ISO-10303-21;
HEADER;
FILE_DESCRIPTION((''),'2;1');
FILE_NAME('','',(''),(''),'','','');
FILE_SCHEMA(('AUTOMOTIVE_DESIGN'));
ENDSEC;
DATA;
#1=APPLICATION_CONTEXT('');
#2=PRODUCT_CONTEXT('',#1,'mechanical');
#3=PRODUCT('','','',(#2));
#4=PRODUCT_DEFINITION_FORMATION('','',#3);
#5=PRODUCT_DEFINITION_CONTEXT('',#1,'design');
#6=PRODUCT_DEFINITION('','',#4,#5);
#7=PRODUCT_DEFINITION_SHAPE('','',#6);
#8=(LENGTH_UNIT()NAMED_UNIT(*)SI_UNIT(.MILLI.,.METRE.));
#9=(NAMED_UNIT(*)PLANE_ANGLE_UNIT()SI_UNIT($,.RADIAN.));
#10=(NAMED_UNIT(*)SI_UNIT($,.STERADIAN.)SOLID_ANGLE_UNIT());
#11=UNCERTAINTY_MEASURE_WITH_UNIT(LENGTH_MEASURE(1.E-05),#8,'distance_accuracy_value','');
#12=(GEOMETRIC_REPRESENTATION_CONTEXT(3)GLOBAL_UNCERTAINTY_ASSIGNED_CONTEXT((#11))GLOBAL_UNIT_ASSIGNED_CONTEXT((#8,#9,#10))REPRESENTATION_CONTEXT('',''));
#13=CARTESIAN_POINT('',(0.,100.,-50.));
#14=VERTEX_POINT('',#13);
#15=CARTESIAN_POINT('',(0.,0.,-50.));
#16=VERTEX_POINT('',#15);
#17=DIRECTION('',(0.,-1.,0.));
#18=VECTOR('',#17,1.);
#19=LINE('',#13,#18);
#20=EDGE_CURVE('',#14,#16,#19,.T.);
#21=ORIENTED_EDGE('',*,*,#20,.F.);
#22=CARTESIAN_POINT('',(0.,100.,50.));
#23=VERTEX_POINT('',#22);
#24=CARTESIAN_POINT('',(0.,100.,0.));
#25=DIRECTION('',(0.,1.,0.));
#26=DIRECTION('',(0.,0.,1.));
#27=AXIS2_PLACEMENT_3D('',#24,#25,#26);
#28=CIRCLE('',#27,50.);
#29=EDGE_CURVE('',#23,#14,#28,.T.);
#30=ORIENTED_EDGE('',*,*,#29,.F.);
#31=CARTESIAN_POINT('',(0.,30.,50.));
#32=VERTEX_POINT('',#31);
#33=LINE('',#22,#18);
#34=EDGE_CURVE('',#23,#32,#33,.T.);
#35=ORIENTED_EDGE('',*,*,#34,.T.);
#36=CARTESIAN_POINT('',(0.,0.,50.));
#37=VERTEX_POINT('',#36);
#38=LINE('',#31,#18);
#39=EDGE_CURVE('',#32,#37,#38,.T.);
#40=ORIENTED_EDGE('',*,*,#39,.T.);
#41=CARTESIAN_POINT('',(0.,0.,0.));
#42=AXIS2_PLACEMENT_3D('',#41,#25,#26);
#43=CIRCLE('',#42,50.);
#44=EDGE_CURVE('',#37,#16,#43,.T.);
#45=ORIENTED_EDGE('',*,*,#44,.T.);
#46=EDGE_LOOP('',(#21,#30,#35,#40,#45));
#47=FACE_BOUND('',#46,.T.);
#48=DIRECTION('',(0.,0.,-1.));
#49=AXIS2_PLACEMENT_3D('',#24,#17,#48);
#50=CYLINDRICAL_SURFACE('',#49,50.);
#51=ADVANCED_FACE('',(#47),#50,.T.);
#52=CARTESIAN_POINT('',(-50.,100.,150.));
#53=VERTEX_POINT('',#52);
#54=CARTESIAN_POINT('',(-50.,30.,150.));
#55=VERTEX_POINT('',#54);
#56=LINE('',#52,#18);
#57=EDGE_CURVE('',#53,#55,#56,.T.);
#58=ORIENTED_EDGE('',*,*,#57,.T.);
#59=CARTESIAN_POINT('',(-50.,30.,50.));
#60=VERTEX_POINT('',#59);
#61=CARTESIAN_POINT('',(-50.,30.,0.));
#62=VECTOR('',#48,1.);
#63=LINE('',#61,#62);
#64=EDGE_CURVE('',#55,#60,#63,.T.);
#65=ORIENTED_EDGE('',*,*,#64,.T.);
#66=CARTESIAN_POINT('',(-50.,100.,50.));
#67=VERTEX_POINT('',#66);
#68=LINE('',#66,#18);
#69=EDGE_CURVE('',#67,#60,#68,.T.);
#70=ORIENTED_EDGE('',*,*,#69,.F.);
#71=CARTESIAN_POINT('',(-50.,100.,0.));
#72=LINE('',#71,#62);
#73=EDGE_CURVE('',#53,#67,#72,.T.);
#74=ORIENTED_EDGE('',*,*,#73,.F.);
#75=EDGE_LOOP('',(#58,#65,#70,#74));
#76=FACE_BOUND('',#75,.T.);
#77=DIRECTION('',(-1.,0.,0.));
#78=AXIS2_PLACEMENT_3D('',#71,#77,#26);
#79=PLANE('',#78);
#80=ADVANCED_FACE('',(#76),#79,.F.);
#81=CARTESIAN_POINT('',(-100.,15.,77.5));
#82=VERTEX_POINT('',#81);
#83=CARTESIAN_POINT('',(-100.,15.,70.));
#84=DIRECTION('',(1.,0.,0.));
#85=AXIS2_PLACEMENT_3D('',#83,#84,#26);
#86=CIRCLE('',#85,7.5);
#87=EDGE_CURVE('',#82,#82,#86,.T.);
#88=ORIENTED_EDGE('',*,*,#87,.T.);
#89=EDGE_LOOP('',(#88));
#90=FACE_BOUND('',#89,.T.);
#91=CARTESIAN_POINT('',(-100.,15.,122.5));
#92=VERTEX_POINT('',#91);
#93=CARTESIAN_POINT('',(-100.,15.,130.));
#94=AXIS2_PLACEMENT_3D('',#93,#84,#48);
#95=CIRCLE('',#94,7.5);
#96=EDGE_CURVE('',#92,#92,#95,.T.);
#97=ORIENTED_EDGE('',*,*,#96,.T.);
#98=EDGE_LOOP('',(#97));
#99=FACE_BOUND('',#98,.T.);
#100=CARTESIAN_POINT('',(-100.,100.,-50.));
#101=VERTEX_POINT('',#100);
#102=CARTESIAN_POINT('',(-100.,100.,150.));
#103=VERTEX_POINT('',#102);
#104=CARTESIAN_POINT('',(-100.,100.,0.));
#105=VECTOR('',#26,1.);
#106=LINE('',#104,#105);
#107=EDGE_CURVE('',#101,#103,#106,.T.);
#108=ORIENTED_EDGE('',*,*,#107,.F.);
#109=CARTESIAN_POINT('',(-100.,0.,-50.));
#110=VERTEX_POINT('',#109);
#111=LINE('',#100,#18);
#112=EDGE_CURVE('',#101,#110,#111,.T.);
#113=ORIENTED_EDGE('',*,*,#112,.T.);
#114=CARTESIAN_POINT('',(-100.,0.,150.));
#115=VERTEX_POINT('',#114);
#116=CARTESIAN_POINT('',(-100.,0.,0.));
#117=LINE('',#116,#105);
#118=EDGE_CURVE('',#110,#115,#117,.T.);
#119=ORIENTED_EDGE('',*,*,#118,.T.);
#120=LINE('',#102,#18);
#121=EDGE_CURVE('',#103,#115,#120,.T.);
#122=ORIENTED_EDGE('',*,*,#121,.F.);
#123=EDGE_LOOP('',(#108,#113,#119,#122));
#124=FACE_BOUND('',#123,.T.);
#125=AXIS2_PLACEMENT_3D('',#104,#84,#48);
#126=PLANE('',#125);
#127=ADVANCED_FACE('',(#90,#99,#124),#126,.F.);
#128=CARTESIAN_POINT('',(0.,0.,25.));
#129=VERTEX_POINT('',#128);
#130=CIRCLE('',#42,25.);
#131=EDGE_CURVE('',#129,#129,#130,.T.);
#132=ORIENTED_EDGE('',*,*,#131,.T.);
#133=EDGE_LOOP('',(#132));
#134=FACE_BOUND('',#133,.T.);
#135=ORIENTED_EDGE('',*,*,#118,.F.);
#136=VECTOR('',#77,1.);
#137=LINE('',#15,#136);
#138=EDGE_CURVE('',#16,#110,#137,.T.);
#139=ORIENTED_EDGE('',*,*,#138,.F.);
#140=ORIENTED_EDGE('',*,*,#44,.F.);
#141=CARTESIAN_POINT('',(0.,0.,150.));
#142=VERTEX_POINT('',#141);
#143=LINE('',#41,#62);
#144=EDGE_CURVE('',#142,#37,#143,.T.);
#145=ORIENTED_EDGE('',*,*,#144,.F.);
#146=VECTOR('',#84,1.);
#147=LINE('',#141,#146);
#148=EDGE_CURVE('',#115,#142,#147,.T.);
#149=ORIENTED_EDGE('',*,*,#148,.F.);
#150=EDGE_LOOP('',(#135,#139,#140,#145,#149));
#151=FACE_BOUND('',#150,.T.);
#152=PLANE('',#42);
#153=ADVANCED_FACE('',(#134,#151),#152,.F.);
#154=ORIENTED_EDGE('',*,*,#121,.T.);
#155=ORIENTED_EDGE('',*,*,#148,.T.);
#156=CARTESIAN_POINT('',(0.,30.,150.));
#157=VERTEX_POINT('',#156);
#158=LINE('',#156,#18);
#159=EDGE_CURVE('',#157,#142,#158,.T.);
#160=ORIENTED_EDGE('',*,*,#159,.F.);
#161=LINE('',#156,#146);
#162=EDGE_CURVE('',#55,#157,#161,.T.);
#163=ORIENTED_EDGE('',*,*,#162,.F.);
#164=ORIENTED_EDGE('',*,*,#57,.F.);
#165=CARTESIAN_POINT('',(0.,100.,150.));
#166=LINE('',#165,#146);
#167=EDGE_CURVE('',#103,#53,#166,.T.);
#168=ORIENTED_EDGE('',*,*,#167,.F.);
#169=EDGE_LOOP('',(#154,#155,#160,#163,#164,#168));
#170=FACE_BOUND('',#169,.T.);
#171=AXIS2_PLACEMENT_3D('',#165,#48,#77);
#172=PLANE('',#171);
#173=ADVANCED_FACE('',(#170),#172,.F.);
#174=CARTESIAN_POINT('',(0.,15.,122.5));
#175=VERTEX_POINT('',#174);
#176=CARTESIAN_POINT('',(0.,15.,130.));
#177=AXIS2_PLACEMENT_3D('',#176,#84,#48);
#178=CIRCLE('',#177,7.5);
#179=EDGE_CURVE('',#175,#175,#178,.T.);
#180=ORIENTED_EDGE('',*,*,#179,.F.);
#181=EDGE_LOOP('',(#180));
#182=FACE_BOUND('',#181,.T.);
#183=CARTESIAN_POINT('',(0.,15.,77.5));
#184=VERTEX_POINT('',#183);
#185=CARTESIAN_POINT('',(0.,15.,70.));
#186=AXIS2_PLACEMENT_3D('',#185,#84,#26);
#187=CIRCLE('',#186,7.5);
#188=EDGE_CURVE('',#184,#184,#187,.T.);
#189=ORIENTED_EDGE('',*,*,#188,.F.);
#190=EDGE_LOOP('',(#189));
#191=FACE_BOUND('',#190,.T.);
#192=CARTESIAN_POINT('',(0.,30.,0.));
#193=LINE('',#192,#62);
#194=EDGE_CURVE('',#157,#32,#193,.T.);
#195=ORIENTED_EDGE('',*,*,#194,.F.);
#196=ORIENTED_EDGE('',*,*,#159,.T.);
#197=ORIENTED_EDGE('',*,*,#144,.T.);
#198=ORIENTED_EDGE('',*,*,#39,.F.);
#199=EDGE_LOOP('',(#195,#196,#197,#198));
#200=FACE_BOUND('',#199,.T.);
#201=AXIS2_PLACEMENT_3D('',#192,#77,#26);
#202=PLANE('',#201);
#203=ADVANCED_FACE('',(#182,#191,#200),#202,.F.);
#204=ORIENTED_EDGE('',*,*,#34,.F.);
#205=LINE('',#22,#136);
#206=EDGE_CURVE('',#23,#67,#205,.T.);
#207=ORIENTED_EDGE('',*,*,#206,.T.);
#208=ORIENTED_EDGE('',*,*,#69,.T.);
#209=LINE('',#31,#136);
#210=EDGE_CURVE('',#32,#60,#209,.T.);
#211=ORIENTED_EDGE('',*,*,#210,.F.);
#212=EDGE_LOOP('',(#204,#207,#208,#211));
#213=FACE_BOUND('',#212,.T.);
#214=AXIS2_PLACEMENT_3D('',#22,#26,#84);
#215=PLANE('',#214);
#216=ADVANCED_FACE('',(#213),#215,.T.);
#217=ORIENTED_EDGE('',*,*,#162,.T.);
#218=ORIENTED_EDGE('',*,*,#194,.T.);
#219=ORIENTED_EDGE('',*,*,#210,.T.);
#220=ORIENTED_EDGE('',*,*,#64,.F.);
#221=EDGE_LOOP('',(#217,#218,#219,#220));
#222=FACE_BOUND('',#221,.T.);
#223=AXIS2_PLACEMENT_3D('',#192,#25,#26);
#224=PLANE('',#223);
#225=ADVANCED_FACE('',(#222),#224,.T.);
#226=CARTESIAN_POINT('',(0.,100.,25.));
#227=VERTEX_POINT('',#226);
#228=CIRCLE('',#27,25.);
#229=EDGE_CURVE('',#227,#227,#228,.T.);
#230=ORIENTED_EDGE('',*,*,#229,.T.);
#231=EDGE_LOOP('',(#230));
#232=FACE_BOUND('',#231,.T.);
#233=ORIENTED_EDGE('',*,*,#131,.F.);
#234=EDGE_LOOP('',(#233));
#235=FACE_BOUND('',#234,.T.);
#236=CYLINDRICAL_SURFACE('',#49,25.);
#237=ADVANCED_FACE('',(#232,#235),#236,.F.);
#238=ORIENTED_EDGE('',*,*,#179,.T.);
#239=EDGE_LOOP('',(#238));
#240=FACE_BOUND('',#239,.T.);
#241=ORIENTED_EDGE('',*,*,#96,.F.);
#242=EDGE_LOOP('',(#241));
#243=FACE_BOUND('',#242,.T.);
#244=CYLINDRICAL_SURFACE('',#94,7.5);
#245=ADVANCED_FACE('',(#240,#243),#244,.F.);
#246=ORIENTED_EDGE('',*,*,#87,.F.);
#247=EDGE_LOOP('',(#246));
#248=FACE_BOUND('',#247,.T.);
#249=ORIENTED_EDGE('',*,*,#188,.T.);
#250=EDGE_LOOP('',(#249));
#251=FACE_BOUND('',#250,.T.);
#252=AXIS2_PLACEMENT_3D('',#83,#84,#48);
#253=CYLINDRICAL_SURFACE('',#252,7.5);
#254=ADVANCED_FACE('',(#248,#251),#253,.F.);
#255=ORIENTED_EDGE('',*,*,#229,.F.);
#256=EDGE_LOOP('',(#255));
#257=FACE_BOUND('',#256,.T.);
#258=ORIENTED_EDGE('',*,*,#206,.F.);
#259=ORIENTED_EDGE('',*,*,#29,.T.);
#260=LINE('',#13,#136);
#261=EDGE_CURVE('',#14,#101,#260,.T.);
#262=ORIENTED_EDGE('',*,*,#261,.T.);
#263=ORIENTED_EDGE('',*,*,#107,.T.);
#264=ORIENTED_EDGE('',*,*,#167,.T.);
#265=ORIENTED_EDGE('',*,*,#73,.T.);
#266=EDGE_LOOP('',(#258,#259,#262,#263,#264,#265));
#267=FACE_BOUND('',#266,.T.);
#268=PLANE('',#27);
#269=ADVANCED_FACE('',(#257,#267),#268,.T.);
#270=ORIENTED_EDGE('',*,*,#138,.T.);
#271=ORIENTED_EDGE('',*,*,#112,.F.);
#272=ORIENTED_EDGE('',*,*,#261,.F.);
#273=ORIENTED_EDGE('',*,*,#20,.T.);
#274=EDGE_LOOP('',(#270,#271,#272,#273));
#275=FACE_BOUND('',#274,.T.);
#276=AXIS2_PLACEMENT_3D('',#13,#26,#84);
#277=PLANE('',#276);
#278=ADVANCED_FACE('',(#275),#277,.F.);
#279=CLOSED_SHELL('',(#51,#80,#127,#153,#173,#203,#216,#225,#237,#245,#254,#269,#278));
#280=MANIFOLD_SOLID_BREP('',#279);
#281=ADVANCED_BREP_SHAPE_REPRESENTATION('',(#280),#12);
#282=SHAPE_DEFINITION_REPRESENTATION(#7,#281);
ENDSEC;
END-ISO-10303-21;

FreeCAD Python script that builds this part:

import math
import FreeCAD as App
import Part
import Sketcher
from FreeCAD import Vector


def add_polygon(sketch, points):
    """Adds a closed chain of lines whose ends are joined by coincident constraints."""
    first, n = sketch.GeometryCount, len(points)
    for a, b in zip(points, points[1:] + points[:1]):
        sketch.addGeometry(Part.LineSegment(App.Vector(*a, 0), App.Vector(*b, 0)), False)
    for i in range(n):
        sketch.addConstraint(Sketcher.Constraint("Coincident", first + i, 2, first + (i + 1) % n, 1))

doc = App.newDocument("Part")
body = doc.addObject("PartDesign::Body", "Body")

# Sketch on XZ plane
sketch1 = doc.addObject("Sketcher::SketchObject", "Sketch")
body.addObject(sketch1)
sketch1.AttachmentSupport = (doc.XZ_Plane, [""])
sketch1.MapMode = "FlatFace"
sketch1.addGeometry(Part.LineSegment(Vector(-50, 50, 0), Vector(0, 50, 0)), False)
sketch1.addGeometry(Part.ArcOfCircle(Part.Circle(Vector(0, 0, 0), Vector(0, 0, 1), 50), math.radians(-90), math.radians(90)), False)
sketch1.addGeometry(Part.LineSegment(Vector(0, -50, 0), Vector(-100, -50, 0)), False)
sketch1.addGeometry(Part.LineSegment(Vector(-100, -50, 0), Vector(-100, 150, 0)), False)
sketch1.addGeometry(Part.LineSegment(Vector(-100, 150, 0), Vector(-50, 150, 0)), False)
sketch1.addGeometry(Part.LineSegment(Vector(-50, 150, 0), Vector(-50, 50, 0)), False)
sketch1.addGeometry(Part.Circle(Vector(0, 0, 0), Vector(0, 0, 1), 25), False)
sketch1.addConstraint(Sketcher.Constraint("Tangent", 0, 2, 1, 2))
sketch1.addConstraint(Sketcher.Constraint("Tangent", 1, 1, 2, 1))
sketch1.addConstraint(Sketcher.Constraint("Coincident", 2, 2, 3, 1))
sketch1.addConstraint(Sketcher.Constraint("Coincident", 3, 2, 4, 1))
sketch1.addConstraint(Sketcher.Constraint("Coincident", 4, 2, 5, 1))
sketch1.addConstraint(Sketcher.Constraint("Coincident", 5, 2, 0, 1))
sketch1.addConstraint(Sketcher.Constraint("Horizontal", 0))
sketch1.addConstraint(Sketcher.Constraint("Horizontal", 2))
sketch1.addConstraint(Sketcher.Constraint("Vertical", 3))
sketch1.addConstraint(Sketcher.Constraint("Horizontal", 4))
sketch1.addConstraint(Sketcher.Constraint("Vertical", 5))
sketch1.addConstraint(Sketcher.Constraint("Coincident", 1, 3, -1, 1))
sketch1.addConstraint(Sketcher.Constraint("Coincident", 6, 3, -1, 1))
sketch1.addConstraint(Sketcher.Constraint("Equal", 0, 4))
sketch1.addConstraint(Sketcher.Constraint("Equal", 2, 5))
sketch1.addConstraint(Sketcher.Constraint("Diameter", 6, 50.0))
sketch1.addConstraint(Sketcher.Constraint("Radius", 1, 50.0))
sketch1.addConstraint(Sketcher.Constraint("DistanceX", 0, 1, 0, 2, 50.0))
pad1 = doc.addObject("PartDesign::Pad", "Pad")
body.addObject(pad1)
pad1.Profile = sketch1
pad1.Length = 100
pad1.Reversed = True

# Sketch on XZ plane
sketch2 = doc.addObject("Sketcher::SketchObject", "Sketch001")
body.addObject(sketch2)
sketch2.AttachmentSupport = (doc.XZ_Plane, [""])
sketch2.MapMode = "FlatFace"
add_polygon(sketch2, [(-50, 50), (-50, 150), (0, 150), (0, 50)])  # lines 0-3
sketch2.addConstraint(Sketcher.Constraint("Vertical", 0))
sketch2.addConstraint(Sketcher.Constraint("Horizontal", 1))
sketch2.addConstraint(Sketcher.Constraint("Vertical", 2))
sketch2.addConstraint(Sketcher.Constraint("Horizontal", 3))
sketch2.addConstraint(Sketcher.Constraint("PointOnObject", 1, 2, -2))
sketch2.addConstraint(Sketcher.Constraint("DistanceX", 1, 1, 1, 2, 50.0))
sketch2.addConstraint(Sketcher.Constraint("DistanceY", 0, 1, 0, 2, 100.0))
sketch2.addConstraint(Sketcher.Constraint("DistanceY", -1, 1, 0, 2, 150.0))
pad2 = doc.addObject("PartDesign::Pad", "Pad001")
body.addObject(pad2)
pad2.Profile = sketch2
pad2.Length = 30
pad2.Reversed = True

# Sketch on YZ plane
sketch3 = doc.addObject("Sketcher::SketchObject", "Sketch002")
body.addObject(sketch3)
sketch3.AttachmentSupport = (doc.YZ_Plane, [""])
sketch3.MapMode = "FlatFace"
sketch3.addGeometry(Part.Circle(Vector(15, 130, 0), Vector(0, 0, 1), 8), False)
sketch3.addGeometry(Part.Circle(Vector(15, 70, 0), Vector(0, 0, 1), 8), False)
sketch3.addConstraint(Sketcher.Constraint("Equal", 0, 1))
sketch3.addConstraint(Sketcher.Constraint("Vertical", 0, 3, 1, 3))
sketch3.addConstraint(Sketcher.Constraint("Diameter", 0, 15.0))
sketch3.addConstraint(Sketcher.Constraint("DistanceX", -1, 1, 0, 3, 15.0))
sketch3.addConstraint(Sketcher.Constraint("DistanceY", -1, 1, 0, 3, 130.0))
sketch3.addConstraint(Sketcher.Constraint("DistanceY", -1, 1, 1, 3, 70.0))
pocket1 = doc.addObject("PartDesign::Pocket", "Pocket")
body.addObject(pocket1)
pocket1.Profile = sketch3
pocket1.Type = "ThroughAll"

doc.recompute()
